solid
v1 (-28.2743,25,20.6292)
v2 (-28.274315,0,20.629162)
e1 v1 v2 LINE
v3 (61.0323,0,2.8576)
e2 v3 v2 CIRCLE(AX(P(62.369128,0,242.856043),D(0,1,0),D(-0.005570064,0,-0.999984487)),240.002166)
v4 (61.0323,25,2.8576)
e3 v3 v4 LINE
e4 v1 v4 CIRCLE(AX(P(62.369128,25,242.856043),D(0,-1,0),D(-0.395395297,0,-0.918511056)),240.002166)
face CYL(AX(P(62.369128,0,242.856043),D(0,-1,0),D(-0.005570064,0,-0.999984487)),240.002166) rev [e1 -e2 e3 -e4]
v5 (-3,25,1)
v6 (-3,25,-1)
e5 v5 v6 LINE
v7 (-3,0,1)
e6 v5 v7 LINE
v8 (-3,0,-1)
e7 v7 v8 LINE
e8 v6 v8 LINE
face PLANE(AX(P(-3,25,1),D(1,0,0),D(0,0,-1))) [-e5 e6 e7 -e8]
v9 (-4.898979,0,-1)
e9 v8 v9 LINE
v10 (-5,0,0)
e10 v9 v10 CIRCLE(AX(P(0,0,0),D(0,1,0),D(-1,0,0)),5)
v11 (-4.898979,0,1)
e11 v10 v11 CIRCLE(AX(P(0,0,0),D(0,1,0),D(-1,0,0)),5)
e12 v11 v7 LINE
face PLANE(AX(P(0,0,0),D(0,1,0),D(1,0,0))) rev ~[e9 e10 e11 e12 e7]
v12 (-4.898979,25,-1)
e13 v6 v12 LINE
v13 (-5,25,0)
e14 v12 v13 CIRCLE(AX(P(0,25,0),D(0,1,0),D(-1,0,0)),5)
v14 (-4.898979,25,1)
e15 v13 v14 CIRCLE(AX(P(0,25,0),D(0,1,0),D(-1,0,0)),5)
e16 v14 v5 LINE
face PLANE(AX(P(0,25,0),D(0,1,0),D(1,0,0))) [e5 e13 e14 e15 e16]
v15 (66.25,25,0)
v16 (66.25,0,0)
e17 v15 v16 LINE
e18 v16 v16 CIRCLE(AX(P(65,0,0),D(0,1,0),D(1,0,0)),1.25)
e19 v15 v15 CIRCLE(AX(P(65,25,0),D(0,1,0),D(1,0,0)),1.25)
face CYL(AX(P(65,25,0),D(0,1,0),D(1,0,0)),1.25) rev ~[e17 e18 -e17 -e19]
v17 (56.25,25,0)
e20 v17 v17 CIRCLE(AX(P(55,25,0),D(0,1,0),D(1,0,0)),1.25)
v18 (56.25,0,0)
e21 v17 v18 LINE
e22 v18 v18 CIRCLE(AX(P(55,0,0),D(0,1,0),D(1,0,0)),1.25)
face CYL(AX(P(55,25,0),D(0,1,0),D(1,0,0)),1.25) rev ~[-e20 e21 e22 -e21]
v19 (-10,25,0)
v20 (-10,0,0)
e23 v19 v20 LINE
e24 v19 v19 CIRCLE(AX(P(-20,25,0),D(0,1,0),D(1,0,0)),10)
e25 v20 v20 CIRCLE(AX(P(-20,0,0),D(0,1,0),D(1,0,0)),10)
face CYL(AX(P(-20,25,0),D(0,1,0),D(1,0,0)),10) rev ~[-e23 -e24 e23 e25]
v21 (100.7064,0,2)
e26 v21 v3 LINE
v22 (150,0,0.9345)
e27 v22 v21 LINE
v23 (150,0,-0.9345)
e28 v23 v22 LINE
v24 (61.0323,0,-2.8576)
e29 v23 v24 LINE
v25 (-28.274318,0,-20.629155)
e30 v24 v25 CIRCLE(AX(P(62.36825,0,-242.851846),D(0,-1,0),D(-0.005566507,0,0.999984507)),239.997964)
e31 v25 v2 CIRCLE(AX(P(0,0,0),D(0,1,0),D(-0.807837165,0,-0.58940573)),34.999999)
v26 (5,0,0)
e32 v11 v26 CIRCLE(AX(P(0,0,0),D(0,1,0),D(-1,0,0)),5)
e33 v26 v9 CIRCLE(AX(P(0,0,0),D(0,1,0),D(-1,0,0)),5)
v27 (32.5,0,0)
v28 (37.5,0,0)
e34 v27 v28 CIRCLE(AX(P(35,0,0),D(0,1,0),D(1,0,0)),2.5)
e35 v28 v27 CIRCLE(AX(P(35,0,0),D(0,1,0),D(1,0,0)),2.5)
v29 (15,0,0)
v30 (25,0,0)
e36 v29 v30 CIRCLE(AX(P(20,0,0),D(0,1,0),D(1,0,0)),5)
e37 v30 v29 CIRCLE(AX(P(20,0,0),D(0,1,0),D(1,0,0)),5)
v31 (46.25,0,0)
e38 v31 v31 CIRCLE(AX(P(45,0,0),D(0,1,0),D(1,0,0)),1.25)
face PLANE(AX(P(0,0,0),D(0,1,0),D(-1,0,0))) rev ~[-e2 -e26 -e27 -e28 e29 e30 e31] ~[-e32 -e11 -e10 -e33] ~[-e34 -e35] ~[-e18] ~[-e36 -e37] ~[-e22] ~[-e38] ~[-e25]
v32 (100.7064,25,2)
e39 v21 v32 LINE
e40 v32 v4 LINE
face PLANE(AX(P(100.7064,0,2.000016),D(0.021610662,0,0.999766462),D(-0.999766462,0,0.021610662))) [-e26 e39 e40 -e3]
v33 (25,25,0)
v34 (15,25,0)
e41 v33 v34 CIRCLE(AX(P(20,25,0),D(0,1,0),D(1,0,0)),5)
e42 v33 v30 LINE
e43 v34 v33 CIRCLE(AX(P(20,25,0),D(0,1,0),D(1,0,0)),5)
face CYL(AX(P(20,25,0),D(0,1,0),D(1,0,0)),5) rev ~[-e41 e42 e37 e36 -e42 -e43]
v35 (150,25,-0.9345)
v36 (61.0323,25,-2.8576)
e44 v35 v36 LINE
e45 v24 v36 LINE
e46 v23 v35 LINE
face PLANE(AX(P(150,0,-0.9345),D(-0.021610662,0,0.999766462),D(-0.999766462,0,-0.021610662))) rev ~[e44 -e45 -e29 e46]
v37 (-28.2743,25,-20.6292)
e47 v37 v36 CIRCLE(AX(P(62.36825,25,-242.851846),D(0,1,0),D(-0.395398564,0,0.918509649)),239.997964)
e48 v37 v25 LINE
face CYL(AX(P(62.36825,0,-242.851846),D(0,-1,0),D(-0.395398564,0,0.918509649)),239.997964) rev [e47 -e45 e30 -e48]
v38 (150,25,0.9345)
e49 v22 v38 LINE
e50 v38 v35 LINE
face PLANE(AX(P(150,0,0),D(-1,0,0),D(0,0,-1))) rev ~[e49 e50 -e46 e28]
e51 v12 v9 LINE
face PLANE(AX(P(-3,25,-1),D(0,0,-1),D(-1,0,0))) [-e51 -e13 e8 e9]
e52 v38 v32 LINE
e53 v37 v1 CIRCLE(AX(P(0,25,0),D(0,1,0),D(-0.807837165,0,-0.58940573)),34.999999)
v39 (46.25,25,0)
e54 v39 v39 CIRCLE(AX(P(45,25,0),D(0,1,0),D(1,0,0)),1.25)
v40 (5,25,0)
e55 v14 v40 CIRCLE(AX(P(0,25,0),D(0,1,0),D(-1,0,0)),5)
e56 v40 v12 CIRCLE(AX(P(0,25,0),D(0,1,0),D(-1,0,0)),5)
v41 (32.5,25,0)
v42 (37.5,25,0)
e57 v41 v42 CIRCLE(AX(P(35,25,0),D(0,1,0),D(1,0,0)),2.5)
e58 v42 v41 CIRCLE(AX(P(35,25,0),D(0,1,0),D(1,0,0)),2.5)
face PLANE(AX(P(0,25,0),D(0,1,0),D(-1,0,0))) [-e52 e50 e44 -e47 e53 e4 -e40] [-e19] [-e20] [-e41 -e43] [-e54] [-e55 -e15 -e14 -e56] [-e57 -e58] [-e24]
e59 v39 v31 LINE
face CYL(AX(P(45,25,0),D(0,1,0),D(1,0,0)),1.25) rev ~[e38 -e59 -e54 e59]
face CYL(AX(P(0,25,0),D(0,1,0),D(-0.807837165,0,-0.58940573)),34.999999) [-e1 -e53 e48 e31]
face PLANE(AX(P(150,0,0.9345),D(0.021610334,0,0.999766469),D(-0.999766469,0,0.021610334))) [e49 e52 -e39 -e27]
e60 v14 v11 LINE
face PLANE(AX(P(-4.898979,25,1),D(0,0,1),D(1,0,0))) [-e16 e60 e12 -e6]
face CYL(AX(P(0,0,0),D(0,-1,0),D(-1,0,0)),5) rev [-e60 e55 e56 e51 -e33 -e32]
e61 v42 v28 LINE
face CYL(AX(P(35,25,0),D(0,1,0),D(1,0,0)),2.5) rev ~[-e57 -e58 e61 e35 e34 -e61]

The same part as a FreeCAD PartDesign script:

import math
import FreeCAD as App
import Part
import Sketcher
Q = App.Units.Quantity

doc = App.newDocument("Part")
body = doc.addObject("PartDesign::Body", "Body")

# Sketch on XZ plane
sketch1 = doc.addObject("Sketcher::SketchObject", "Sketch")
body.addObject(sketch1)
sketch1.AttachmentSupport = (doc.XZ_Plane, [""])
sketch1.MapMode = "FlatFace"
sketch1.addGeometry([
    Part.ArcOfCircle(Part.Circle(App.Vector(0, 0, 0), App.Vector(0, 0, 1), 39.5), math.radians(145.432474), math.radians(214.567526)),  # 0
    Part.ArcOfCircle(Part.Circle(App.Vector(62.369128, 242.856043, 0), App.Vector(0, 0, 1), 240.002166), math.radians(-113.29063), math.radians(-90.319143)),  # 1
    Part.LineSegment(App.Vector(61.0323, 2.8576, 0), App.Vector(100.7064, 2.000016, 0)),  # 2
    Part.LineSegment(App.Vector(100.7064, 2, 0), App.Vector(150, 0.9345, 0)),  # 3
    Part.LineSegment(App.Vector(150, 0.9345, 0), App.Vector(150, -0.9345, 0)),  # 4
    Part.LineSegment(App.Vector(150, -0.9345, 0), App.Vector(61.0323, -2.8576, 0)),  # 5
    Part.ArcOfCircle(Part.Circle(App.Vector(62.36825, -242.851846, 0), App.Vector(0, 0, 1), 239.997964), math.radians(90.318939), math.radians(113.290834)),  # 6
    Part.Circle(App.Vector(0, 0, 0), App.Vector(0, 0, 1), 5),  # 7
], False)
sketch1.addConstraint([
    Sketcher.Constraint("Coincident", 0, 1, 1, 1),
    Sketcher.Constraint("Coincident", 1, 2, 2, 1),
    Sketcher.Constraint("Coincident", 2, 2, 3, 1),
    Sketcher.Constraint("Coincident", 3, 2, 4, 1),
    Sketcher.Constraint("Coincident", 4, 2, 5, 1),
    Sketcher.Constraint("Coincident", 5, 2, 6, 1),
    Sketcher.Constraint("Coincident", 6, 2, 0, 2),
    Sketcher.Constraint("Vertical", 4),
    Sketcher.Constraint("Coincident", 0, 3, -1, 1),
    Sketcher.Constraint("Coincident", 7, 3, -1, 1),
    Sketcher.Constraint("Diameter", 7, Q("10 mm")),
    Sketcher.Constraint("Radius", 0, Q("39.5 mm")),
    Sketcher.Constraint("DistanceY", -1, 1, 2, 2, Q("2 mm")),
    Sketcher.Constraint("DistanceX", -1, 1, 3, 2, Q("150 mm")),
    Sketcher.Constraint("Radius", 6, Q("239.998 mm")),
    Sketcher.Constraint("Radius", 1, Q("240.0022 mm")),
    Sketcher.Constraint("DistanceY", 4, 2, 4, 1, Q("1.869 mm")),
    Sketcher.Constraint("Distance", 3, Q("49.305 mm")),
    Sketcher.Constraint("DistanceY", -1, 1, 1, 3, Q("242.856 mm")),
    Sketcher.Constraint("DistanceY", 6, 3, 1, 3, Q("485.708 mm")),
    Sketcher.Constraint("DistanceX", 0, 1, 1, 2, Q("93.559 mm")),
    Sketcher.Constraint("DistanceX", 1, 2, 6, 3, Q("1.336 mm")),
    Sketcher.Constraint("DistanceX", 0, 1, 2, 2, Q("133.233 mm")),
    Sketcher.Constraint("DistanceY", 3, 2, 1, 2, Q("1.923 mm")),
    Sketcher.Constraint("DistanceX", 5, 2, 2, 2, Q("39.674 mm")),
])
pad1 = doc.addObject("PartDesign::Pad", "Pad")
body.addObject(pad1)
pad1.Profile = sketch1
pad1.Length = 25
pad1.Reversed = True

# Sketch on XZ plane
sketch2 = doc.addObject("Sketcher::SketchObject", "Sketch001")
body.addObject(sketch2)
sketch2.AttachmentSupport = (doc.XZ_Plane, [""])
sketch2.MapMode = "FlatFace"
sketch2.AttachmentOffset = App.Placement(App.Vector(0, 0, -25), App.Rotation())
sketch2.addGeometry([
    Part.ArcOfCircle(Part.Circle(App.Vector(62.4, 242.9, 0), App.Vector(0, 0, 1), 240), math.radians(-113.29), math.radians(-112.19)),
    Part.ArcOfCircle(Part.Circle(App.Vector(0, 0, 0), App.Vector(0, 0, 1), 35), math.radians(144), math.radians(216)),
    Part.ArcOfCircle(Part.Circle(App.Vector(62.4, -242.9, 0), App.Vector(0, 0, 1), 240), math.radians(112.19), math.radians(113.29)),
    Part.ArcOfCircle(Part.Circle(App.Vector(0, 0, 0), App.Vector(0, 0, 1), 39.5), math.radians(145), math.radians(215)),
], False)
sketch2.addConstraint([
    Sketcher.Constraint("Coincident", 0, 2, 1, 1),
    Sketcher.Constraint("Coincident", 1, 2, 2, 1),
    Sketcher.Constraint("Coincident", 2, 2, 3, 2),
    Sketcher.Constraint("Coincident", 3, 1, 0, 1),
    Sketcher.Constraint("Coincident", 1, 3, -1, 1),
    Sketcher.Constraint("Coincident", 3, 3, -1, 1),
    Sketcher.Constraint("Vertical", 0, 2, 1, 2),
    Sketcher.Constraint("Radius", 1, Q("35 mm")),
    Sketcher.Constraint("Radius", 3, Q("39.5 mm")),
    Sketcher.Constraint("Radius", 2, Q("239.998 mm")),
    Sketcher.Constraint("Radius", 0, Q("240.0022 mm")),
    Sketcher.Constraint("DistanceY", -1, 1, 0, 3, Q("242.856 mm")),
    Sketcher.Constraint("DistanceY", 2, 3, 0, 3, Q("485.708 mm")),
    Sketcher.Constraint("DistanceY", 0, 2, 0, 3, Q("222.227 mm")),
])
pocket1 = doc.addObject("PartDesign::Pocket", "Pocket")
body.addObject(pocket1)
pocket1.Profile = sketch2
pocket1.Type = "ThroughAll"
pocket1.Reversed = True

# Sketch on XZ plane
sketch3 = doc.addObject("Sketcher::SketchObject", "Sketch002")
body.addObject(sketch3)
sketch3.AttachmentSupport = (doc.XZ_Plane, [""])
sketch3.MapMode = "FlatFace"
sketch3.AttachmentOffset = App.Placement(App.Vector(0, 0, -25), App.Rotation())
sketch3.addGeometry([
    Part.LineSegment(App.Vector(-3, -1, 0), App.Vector(-4.9, -1, 0)),
    Part.ArcOfCircle(Part.Circle(App.Vector(0, 0, 0), App.Vector(0, 0, 1), 5), math.radians(168), math.radians(192)),
    Part.LineSegment(App.Vector(-4.9, 1, 0), App.Vector(-3, 1, 0)),
    Part.LineSegment(App.Vector(-3, 1, 0), App.Vector(-3, -1, 0)),
], False)
sketch3.addConstraint([
    Sketcher.Constraint("Coincident", 0, 2, 1, 2),
    Sketcher.Constraint("Coincident", 1, 1, 2, 1),
    Sketcher.Constraint("Coincident", 2, 2, 3, 1),
    Sketcher.Constraint("Coincident", 3, 2, 0, 1),
    Sketcher.Constraint("Horizontal", 0),
    Sketcher.Constraint("Horizontal", 2),
    Sketcher.Constraint("Vertical", 3),
    Sketcher.Constraint("Coincident", 1, 3, -1, 1),
    Sketcher.Constraint("Vertical", 0, 2, 1, 1),
    Sketcher.Constraint("Radius", 1, Q("5 mm")),
    Sketcher.Constraint("DistanceY", 3, 2, 3, 1, Q("2 mm")),
    Sketcher.Constraint("DistanceX", 2, 2, -1, 1, Q("3 mm")),
])
pad2 = doc.addObject("PartDesign::Pad", "Pad001")
body.addObject(pad2)
pad2.Profile = sketch3
pad2.Length = 25

# Sketch on XZ plane
sketch4 = doc.addObject("Sketcher::SketchObject", "Sketch003")
body.addObject(sketch4)
sketch4.AttachmentSupport = (doc.XZ_Plane, [""])
sketch4.MapMode = "FlatFace"
sketch4.AttachmentOffset = App.Placement(App.Vector(0, 0, -25), App.Rotation())
sketch4.addGeometry([
    Part.Circle(App.Vector(-20, 0, 0), App.Vector(0, 0, 1), 10),  # 0
    Part.Circle(App.Vector(20, 0, 0), App.Vector(0, 0, 1), 5),  # 1
    Part.Circle(App.Vector(35, 0, 0), App.Vector(0, 0, 1), 2.5),  # 2
    Part.Circle(App.Vector(45, 0, 0), App.Vector(0, 0, 1), 1.2),  # 3
    Part.Circle(App.Vector(55, 0, 0), App.Vector(0, 0, 1), 1.2),  # 4
    Part.Circle(App.Vector(65, 0, 0), App.Vector(0, 0, 1), 1.2),  # 5
], False)
sketch4.addConstraint([
    Sketcher.Constraint("Equal", 3, 4),
    Sketcher.Constraint("Equal", 4, 5),
    Sketcher.Constraint("Symmetric", 0, 3, 1, 3, -1, 1),
    Sketcher.Constraint("PointOnObject", 0, 3, -1),
    Sketcher.Constraint("PointOnObject", 2, 3, -1),
    Sketcher.Constraint("PointOnObject", 3, 3, -1),
    Sketcher.Constraint("PointOnObject", 4, 3, -1),
    Sketcher.Constraint("PointOnObject", 5, 3, -1),
    Sketcher.Constraint("Diameter", 0, Q("20 mm")),
    Sketcher.Constraint("Diameter", 1, Q("10 mm")),
    Sketcher.Constraint("Diameter", 2, Q("5 mm")),
    Sketcher.Constraint("Diameter", 3, Q("2.5 mm")),
    Sketcher.Constraint("DistanceX", 0, 3, -1, 1, Q("20 mm")),
    Sketcher.Constraint("DistanceX", 1, 3, 2, 3, Q("15 mm")),
    Sketcher.Constraint("DistanceX", 2, 3, 3, 3, Q("10 mm")),
    Sketcher.Constraint("DistanceX", 3, 3, 4, 3, Q("10 mm")),
    Sketcher.Constraint("DistanceX", 4, 3, 5, 3, Q("10 mm")),
])
pocket2 = doc.addObject("PartDesign::Pocket", "Pocket001")
body.addObject(pocket2)
pocket2.Profile = sketch4
pocket2.Type = "ThroughAll"
pocket2.Reversed = True

doc.recompute()
